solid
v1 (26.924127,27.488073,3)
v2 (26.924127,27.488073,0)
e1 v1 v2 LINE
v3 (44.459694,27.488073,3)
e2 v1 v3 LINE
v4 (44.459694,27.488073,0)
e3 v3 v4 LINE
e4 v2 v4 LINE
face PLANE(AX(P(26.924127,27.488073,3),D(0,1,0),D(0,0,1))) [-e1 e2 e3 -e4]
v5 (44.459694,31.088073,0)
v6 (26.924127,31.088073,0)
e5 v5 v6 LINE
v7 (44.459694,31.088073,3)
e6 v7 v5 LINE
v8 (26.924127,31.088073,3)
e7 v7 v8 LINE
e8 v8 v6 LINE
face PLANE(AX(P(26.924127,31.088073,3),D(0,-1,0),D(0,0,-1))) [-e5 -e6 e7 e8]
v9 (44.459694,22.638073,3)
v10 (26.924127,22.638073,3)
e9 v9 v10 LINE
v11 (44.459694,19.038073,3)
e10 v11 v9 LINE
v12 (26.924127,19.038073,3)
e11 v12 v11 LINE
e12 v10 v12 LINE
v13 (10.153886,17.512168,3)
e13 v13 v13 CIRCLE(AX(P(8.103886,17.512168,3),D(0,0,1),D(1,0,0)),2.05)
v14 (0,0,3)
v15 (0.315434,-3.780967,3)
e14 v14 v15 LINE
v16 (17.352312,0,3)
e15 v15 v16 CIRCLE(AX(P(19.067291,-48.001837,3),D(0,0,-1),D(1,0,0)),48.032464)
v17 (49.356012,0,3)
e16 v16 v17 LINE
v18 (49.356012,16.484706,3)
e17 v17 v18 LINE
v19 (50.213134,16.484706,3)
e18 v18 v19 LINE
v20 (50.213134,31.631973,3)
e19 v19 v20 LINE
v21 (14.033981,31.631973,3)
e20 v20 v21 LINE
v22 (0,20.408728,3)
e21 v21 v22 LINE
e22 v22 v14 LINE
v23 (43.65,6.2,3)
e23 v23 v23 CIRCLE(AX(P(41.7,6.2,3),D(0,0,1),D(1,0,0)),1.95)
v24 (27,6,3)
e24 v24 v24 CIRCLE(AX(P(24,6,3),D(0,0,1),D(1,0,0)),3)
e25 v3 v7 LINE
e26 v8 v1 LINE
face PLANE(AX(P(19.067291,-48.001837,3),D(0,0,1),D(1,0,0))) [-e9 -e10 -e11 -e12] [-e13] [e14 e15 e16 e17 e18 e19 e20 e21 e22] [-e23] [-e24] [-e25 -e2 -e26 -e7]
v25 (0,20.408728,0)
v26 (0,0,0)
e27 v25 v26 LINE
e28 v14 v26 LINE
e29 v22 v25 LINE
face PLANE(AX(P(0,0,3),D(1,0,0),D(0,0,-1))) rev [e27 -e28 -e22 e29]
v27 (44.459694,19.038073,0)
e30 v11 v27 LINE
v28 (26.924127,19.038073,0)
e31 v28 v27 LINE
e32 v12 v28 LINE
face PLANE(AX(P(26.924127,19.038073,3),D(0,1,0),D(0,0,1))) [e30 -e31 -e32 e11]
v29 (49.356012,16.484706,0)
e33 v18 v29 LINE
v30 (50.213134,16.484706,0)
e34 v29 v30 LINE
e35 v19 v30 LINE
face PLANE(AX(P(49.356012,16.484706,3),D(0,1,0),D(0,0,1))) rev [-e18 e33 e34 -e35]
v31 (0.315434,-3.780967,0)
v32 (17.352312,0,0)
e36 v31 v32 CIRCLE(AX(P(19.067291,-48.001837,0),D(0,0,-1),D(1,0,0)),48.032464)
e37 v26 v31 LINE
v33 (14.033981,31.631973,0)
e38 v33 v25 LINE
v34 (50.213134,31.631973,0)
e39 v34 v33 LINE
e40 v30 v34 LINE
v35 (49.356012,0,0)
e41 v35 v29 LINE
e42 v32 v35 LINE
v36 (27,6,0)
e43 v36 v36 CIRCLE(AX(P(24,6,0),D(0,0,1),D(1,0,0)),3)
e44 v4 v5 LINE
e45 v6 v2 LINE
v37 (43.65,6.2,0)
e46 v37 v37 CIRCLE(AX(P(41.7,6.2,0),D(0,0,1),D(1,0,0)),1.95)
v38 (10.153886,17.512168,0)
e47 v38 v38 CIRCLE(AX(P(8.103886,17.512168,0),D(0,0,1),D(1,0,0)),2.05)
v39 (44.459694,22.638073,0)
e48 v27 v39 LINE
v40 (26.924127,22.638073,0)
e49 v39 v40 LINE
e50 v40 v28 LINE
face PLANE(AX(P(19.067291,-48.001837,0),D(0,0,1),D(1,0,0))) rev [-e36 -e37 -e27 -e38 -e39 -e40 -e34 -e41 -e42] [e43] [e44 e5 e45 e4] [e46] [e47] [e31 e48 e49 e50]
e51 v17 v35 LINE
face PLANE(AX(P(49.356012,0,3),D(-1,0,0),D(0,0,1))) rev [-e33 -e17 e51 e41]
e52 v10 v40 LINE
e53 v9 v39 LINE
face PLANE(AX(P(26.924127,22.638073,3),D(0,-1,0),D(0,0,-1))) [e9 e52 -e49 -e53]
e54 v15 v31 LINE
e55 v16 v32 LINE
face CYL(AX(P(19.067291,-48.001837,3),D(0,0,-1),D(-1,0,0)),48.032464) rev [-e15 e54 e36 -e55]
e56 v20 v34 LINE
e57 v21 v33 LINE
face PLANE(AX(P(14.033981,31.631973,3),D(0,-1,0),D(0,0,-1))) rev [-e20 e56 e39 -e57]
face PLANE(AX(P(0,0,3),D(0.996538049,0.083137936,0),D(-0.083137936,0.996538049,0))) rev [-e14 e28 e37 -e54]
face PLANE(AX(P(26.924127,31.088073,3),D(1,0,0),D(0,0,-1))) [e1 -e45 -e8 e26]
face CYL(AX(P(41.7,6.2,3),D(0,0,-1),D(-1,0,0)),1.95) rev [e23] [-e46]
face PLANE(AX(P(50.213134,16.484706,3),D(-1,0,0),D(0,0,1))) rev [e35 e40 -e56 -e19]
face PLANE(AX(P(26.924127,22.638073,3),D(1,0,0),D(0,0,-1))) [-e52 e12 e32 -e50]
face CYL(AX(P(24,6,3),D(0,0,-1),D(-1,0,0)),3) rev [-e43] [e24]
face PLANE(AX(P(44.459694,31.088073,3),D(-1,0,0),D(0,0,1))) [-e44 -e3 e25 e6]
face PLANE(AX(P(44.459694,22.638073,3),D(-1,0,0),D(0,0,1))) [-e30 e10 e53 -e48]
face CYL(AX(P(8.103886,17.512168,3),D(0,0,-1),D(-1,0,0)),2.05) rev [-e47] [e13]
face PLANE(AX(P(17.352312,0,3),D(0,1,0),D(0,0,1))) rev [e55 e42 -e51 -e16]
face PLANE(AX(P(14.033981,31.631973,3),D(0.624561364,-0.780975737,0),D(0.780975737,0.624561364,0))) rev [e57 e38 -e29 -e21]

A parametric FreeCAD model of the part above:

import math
import FreeCAD as App
import Part
import Sketcher
from FreeCAD import Vector
Q = App.Units.Quantity


def add_polygon(sketch, points):
    """Adds a closed chain of lines whose ends are joined by coincident constraints."""
    first, n = sketch.GeometryCount, len(points)
    for a, b in zip(points, points[1:] + points[:1]):
        sketch.addGeometry(Part.LineSegment(App.Vector(*a, 0), App.Vector(*b, 0)), False)
    for i in range(n):
        sketch.addConstraint(Sketcher.Constraint("Coincident", first + i, 2, first + (i + 1) % n, 1))

doc = App.newDocument("Part")
params = doc.addObject("Spreadsheet::Sheet", "Params")
for row, (alias, value) in enumerate([
    ("sketch1_diameter", "6 mm"),
    ("sketch1_diameter2", "3.9 mm"),
    ("sketch1_diameter3", "4.1 mm"),
    ("sketch1_height", "3.6 mm"),
    ("pad1_length", "3 mm"),
], start=1):
    params.set(f"A{row}", alias)
    params.set(f"B{row}", "=" + value)
    params.setAlias(f"B{row}", alias)

body = doc.addObject("PartDesign::Body", "Body")

# Sketch on XY plane
sketch1 = doc.addObject("Sketcher::SketchObject", "Sketch")
body.addObject(sketch1)
sketch1.AttachmentSupport = (doc.XY_Plane, [""])
sketch1.MapMode = "FlatFace"
sketch1.addGeometry(Part.LineSegment(Vector(14, 31.6, 0), Vector(0, 20.4, 0)), False)  # 0
sketch1.addGeometry(Part.LineSegment(Vector(0, 20.4, 0), Vector(0, 0, 0)), False)  # 1
sketch1.addGeometry(Part.LineSegment(Vector(0, 0, 0), Vector(0.3, -3.8, 0)), False)  # 2
sketch1.addGeometry(Part.ArcOfCircle(Part.Circle(Vector(19.1, -48, 0), Vector(0, 0, 1), 48), math.radians(92), math.radians(113)), False)  # 3
sketch1.addGeometry(Part.LineSegment(Vector(17.4, 0, 0), Vector(49.4, 0, 0)), False)  # 4
sketch1.addGeometry(Part.LineSegment(Vector(49.4, 0, 0), Vector(49.4, 16.5, 0)), False)  # 5
sketch1.addGeometry(Part.LineSegment(Vector(49.4, 16.5, 0), Vector(50.2, 16.5, 0)), False)  # 6
sketch1.addGeometry(Part.LineSegment(Vector(50.2, 16.5, 0), Vector(50.2, 31.6, 0)), False)  # 7
sketch1.addGeometry(Part.LineSegment(Vector(50.2, 31.6, 0), Vector(14, 31.6, 0)), False)  # 8
sketch1.addGeometry(Part.Circle(Vector(24, 6, 0), Vector(0, 0, 1), 3), False)  # 9
sketch1.addGeometry(Part.Circle(Vector(41.7, 6.2, 0), Vector(0, 0, 1), 1.9), False)  # 10
sketch1.addGeometry(Part.Circle(Vector(8.1, 17.5, 0), Vector(0, 0, 1), 2), False)  # 11
add_polygon(sketch1, [(44.5, 19), (26.9, 19), (26.9, 22.6), (44.5, 22.6)])  # lines 12-15
add_polygon(sketch1, [(44.5, 27.5), (26.9, 27.5), (26.9, 31.1), (44.5, 31.1)])  # lines 16-19
sketch1.addConstraint(Sketcher.Constraint("Coincident", 0, 2, 1, 1))
sketch1.addConstraint(Sketcher.Constraint("Coincident", 1, 2, 2, 1))
sketch1.addConstraint(Sketcher.Constraint("Coincident", 2, 2, 3, 2))
sketch1.addConstraint(Sketcher.Constraint("Coincident", 3, 1, 4, 1))
sketch1.addConstraint(Sketcher.Constraint("Coincident", 4, 2, 5, 1))
sketch1.addConstraint(Sketcher.Constraint("Coincident", 5, 2, 6, 1))
sketch1.addConstraint(Sketcher.Constraint("Coincident", 6, 2, 7, 1))
sketch1.addConstraint(Sketcher.Constraint("Coincident", 7, 2, 8, 1))
sketch1.addConstraint(Sketcher.Constraint("Coincident", 8, 2, 0, 1))
sketch1.addConstraint(Sketcher.Constraint("Vertical", 1))
sketch1.addConstraint(Sketcher.Constraint("Horizontal", 4))
sketch1.addConstraint(Sketcher.Constraint("Vertical", 5))
sketch1.addConstraint(Sketcher.Constraint("Horizontal", 6))
sketch1.addConstraint(Sketcher.Constraint("Vertical", 7))
sketch1.addConstraint(Sketcher.Constraint("Horizontal", 8))
sketch1.addConstraint(Sketcher.Constraint("Horizontal", 12))
sketch1.addConstraint(Sketcher.Constraint("Vertical", 13))
sketch1.addConstraint(Sketcher.Constraint("Horizontal", 14))
sketch1.addConstraint(Sketcher.Constraint("Vertical", 15))
sketch1.addConstraint(Sketcher.Constraint("Horizontal", 16))
sketch1.addConstraint(Sketcher.Constraint("Vertical", 17))
sketch1.addConstraint(Sketcher.Constraint("Horizontal", 18))
sketch1.addConstraint(Sketcher.Constraint("Vertical", 19))
sketch1.addConstraint(Sketcher.Constraint("Coincident", 1, 2, -1, 1))
sketch1.addConstraint(Sketcher.Constraint("PointOnObject", 3, 1, -1))
sketch1.addConstraint(Sketcher.Constraint("Vertical", 13, 2, 16, 2))
sketch1.addConstraint(Sketcher.Constraint("Vertical", 15, 2, 18, 2))
sketch1.addConstraint(Sketcher.Constraint("Equal", 15, 17))
sketch1.addConstraint(Sketcher.Constraint("Diameter", 9, Q("6 mm")))
sketch1.addConstraint(Sketcher.Constraint("Diameter", 10, Q("3.9 mm")))
sketch1.addConstraint(Sketcher.Constraint("Diameter", 11, Q("4.1 mm")))
sketch1.addConstraint(Sketcher.Constraint("DistanceY", 13, 1, 13, 2, Q("3.6 mm")))
sketch1.addConstraint(Sketcher.Constraint("DistanceX", -1, 1, 9, 3, Q("24 mm")))
sketch1.addConstraint(Sketcher.Constraint("DistanceY", -1, 1, 9, 3, Q("6 mm")))
sketch1.addConstraint(Sketcher.Constraint("DistanceX", -1, 1, 10, 3, Q("41.7 mm")))
sketch1.addConstraint(Sketcher.Constraint("DistanceY", -1, 1, 10, 3, Q("6.2 mm")))
sketch1.addConstraint(Sketcher.Constraint("Angle", 0, Q("-141.35 deg")))
sketch1.addConstraint(Sketcher.Constraint("DistanceY", 13, 2, 16, 2, Q("4.85 mm")))
sketch1.addConstraint(Sketcher.Constraint("DistanceX", 4, 1, 4, 2, Q("32.0037 mm")))
sketch1.addConstraint(Sketcher.Constraint("Radius", 3, Q("48.032464 mm")))
sketch1.addConstraint(Sketcher.Constraint("Distance", 2, Q("3.794102 mm")))
sketch1.addConstraint(Sketcher.Constraint("DistanceY", 1, 2, 1, 1, Q("20.408728 mm")))
sketch1.addConstraint(Sketcher.Constraint("DistanceY", 12, 2, 8, 2, Q("12.5939 mm")))
sketch1.addConstraint(Sketcher.Constraint("DistanceX", 6, 1, 6, 2, Q("0.857122 mm")))
sketch1.addConstraint(Sketcher.Constraint("DistanceX", 8, 2, 8, 1, Q("36.179153 mm")))
sketch1.addConstraint(Sketcher.Constraint("DistanceX", 12, 2, 12, 1, Q("17.535567 mm")))
sketch1.addConstraint(Sketcher.Constraint("DistanceY", 5, 1, 5, 2, Q("16.484706 mm")))
sketch1.addConstraint(Sketcher.Constraint("DistanceY", 7, 1, 7, 2, Q("15.147268 mm")))
sketch1.addConstraint(Sketcher.Constraint("DistanceX", -1, 1, 3, 3, Q("19.067291 mm")))
sketch1.addConstraint(Sketcher.Constraint("DistanceY", -1, 1, 11, 3, Q("17.512168 mm")))
sketch1.addConstraint(Sketcher.Constraint("DistanceX", 11, 3, 12, 2, Q("18.820242 mm")))
sketch1.addConstraint(Sketcher.Constraint("DistanceX", 14, 2, 6, 2, Q("5.75344 mm")))
sketch1.setExpression("Constraints[36]", "Params.sketch1_diameter")
sketch1.setExpression("Constraints[37]", "Params.sketch1_diameter2")
sketch1.setExpression("Constraints[38]", "Params.sketch1_diameter3")
sketch1.setExpression("Constraints[39]", "Params.sketch1_height")
pad1 = doc.addObject("PartDesign::Pad", "Pad")
body.addObject(pad1)
pad1.Profile = sketch1
pad1.setExpression("Length", "Params.pad1_length")

doc.recompute()
